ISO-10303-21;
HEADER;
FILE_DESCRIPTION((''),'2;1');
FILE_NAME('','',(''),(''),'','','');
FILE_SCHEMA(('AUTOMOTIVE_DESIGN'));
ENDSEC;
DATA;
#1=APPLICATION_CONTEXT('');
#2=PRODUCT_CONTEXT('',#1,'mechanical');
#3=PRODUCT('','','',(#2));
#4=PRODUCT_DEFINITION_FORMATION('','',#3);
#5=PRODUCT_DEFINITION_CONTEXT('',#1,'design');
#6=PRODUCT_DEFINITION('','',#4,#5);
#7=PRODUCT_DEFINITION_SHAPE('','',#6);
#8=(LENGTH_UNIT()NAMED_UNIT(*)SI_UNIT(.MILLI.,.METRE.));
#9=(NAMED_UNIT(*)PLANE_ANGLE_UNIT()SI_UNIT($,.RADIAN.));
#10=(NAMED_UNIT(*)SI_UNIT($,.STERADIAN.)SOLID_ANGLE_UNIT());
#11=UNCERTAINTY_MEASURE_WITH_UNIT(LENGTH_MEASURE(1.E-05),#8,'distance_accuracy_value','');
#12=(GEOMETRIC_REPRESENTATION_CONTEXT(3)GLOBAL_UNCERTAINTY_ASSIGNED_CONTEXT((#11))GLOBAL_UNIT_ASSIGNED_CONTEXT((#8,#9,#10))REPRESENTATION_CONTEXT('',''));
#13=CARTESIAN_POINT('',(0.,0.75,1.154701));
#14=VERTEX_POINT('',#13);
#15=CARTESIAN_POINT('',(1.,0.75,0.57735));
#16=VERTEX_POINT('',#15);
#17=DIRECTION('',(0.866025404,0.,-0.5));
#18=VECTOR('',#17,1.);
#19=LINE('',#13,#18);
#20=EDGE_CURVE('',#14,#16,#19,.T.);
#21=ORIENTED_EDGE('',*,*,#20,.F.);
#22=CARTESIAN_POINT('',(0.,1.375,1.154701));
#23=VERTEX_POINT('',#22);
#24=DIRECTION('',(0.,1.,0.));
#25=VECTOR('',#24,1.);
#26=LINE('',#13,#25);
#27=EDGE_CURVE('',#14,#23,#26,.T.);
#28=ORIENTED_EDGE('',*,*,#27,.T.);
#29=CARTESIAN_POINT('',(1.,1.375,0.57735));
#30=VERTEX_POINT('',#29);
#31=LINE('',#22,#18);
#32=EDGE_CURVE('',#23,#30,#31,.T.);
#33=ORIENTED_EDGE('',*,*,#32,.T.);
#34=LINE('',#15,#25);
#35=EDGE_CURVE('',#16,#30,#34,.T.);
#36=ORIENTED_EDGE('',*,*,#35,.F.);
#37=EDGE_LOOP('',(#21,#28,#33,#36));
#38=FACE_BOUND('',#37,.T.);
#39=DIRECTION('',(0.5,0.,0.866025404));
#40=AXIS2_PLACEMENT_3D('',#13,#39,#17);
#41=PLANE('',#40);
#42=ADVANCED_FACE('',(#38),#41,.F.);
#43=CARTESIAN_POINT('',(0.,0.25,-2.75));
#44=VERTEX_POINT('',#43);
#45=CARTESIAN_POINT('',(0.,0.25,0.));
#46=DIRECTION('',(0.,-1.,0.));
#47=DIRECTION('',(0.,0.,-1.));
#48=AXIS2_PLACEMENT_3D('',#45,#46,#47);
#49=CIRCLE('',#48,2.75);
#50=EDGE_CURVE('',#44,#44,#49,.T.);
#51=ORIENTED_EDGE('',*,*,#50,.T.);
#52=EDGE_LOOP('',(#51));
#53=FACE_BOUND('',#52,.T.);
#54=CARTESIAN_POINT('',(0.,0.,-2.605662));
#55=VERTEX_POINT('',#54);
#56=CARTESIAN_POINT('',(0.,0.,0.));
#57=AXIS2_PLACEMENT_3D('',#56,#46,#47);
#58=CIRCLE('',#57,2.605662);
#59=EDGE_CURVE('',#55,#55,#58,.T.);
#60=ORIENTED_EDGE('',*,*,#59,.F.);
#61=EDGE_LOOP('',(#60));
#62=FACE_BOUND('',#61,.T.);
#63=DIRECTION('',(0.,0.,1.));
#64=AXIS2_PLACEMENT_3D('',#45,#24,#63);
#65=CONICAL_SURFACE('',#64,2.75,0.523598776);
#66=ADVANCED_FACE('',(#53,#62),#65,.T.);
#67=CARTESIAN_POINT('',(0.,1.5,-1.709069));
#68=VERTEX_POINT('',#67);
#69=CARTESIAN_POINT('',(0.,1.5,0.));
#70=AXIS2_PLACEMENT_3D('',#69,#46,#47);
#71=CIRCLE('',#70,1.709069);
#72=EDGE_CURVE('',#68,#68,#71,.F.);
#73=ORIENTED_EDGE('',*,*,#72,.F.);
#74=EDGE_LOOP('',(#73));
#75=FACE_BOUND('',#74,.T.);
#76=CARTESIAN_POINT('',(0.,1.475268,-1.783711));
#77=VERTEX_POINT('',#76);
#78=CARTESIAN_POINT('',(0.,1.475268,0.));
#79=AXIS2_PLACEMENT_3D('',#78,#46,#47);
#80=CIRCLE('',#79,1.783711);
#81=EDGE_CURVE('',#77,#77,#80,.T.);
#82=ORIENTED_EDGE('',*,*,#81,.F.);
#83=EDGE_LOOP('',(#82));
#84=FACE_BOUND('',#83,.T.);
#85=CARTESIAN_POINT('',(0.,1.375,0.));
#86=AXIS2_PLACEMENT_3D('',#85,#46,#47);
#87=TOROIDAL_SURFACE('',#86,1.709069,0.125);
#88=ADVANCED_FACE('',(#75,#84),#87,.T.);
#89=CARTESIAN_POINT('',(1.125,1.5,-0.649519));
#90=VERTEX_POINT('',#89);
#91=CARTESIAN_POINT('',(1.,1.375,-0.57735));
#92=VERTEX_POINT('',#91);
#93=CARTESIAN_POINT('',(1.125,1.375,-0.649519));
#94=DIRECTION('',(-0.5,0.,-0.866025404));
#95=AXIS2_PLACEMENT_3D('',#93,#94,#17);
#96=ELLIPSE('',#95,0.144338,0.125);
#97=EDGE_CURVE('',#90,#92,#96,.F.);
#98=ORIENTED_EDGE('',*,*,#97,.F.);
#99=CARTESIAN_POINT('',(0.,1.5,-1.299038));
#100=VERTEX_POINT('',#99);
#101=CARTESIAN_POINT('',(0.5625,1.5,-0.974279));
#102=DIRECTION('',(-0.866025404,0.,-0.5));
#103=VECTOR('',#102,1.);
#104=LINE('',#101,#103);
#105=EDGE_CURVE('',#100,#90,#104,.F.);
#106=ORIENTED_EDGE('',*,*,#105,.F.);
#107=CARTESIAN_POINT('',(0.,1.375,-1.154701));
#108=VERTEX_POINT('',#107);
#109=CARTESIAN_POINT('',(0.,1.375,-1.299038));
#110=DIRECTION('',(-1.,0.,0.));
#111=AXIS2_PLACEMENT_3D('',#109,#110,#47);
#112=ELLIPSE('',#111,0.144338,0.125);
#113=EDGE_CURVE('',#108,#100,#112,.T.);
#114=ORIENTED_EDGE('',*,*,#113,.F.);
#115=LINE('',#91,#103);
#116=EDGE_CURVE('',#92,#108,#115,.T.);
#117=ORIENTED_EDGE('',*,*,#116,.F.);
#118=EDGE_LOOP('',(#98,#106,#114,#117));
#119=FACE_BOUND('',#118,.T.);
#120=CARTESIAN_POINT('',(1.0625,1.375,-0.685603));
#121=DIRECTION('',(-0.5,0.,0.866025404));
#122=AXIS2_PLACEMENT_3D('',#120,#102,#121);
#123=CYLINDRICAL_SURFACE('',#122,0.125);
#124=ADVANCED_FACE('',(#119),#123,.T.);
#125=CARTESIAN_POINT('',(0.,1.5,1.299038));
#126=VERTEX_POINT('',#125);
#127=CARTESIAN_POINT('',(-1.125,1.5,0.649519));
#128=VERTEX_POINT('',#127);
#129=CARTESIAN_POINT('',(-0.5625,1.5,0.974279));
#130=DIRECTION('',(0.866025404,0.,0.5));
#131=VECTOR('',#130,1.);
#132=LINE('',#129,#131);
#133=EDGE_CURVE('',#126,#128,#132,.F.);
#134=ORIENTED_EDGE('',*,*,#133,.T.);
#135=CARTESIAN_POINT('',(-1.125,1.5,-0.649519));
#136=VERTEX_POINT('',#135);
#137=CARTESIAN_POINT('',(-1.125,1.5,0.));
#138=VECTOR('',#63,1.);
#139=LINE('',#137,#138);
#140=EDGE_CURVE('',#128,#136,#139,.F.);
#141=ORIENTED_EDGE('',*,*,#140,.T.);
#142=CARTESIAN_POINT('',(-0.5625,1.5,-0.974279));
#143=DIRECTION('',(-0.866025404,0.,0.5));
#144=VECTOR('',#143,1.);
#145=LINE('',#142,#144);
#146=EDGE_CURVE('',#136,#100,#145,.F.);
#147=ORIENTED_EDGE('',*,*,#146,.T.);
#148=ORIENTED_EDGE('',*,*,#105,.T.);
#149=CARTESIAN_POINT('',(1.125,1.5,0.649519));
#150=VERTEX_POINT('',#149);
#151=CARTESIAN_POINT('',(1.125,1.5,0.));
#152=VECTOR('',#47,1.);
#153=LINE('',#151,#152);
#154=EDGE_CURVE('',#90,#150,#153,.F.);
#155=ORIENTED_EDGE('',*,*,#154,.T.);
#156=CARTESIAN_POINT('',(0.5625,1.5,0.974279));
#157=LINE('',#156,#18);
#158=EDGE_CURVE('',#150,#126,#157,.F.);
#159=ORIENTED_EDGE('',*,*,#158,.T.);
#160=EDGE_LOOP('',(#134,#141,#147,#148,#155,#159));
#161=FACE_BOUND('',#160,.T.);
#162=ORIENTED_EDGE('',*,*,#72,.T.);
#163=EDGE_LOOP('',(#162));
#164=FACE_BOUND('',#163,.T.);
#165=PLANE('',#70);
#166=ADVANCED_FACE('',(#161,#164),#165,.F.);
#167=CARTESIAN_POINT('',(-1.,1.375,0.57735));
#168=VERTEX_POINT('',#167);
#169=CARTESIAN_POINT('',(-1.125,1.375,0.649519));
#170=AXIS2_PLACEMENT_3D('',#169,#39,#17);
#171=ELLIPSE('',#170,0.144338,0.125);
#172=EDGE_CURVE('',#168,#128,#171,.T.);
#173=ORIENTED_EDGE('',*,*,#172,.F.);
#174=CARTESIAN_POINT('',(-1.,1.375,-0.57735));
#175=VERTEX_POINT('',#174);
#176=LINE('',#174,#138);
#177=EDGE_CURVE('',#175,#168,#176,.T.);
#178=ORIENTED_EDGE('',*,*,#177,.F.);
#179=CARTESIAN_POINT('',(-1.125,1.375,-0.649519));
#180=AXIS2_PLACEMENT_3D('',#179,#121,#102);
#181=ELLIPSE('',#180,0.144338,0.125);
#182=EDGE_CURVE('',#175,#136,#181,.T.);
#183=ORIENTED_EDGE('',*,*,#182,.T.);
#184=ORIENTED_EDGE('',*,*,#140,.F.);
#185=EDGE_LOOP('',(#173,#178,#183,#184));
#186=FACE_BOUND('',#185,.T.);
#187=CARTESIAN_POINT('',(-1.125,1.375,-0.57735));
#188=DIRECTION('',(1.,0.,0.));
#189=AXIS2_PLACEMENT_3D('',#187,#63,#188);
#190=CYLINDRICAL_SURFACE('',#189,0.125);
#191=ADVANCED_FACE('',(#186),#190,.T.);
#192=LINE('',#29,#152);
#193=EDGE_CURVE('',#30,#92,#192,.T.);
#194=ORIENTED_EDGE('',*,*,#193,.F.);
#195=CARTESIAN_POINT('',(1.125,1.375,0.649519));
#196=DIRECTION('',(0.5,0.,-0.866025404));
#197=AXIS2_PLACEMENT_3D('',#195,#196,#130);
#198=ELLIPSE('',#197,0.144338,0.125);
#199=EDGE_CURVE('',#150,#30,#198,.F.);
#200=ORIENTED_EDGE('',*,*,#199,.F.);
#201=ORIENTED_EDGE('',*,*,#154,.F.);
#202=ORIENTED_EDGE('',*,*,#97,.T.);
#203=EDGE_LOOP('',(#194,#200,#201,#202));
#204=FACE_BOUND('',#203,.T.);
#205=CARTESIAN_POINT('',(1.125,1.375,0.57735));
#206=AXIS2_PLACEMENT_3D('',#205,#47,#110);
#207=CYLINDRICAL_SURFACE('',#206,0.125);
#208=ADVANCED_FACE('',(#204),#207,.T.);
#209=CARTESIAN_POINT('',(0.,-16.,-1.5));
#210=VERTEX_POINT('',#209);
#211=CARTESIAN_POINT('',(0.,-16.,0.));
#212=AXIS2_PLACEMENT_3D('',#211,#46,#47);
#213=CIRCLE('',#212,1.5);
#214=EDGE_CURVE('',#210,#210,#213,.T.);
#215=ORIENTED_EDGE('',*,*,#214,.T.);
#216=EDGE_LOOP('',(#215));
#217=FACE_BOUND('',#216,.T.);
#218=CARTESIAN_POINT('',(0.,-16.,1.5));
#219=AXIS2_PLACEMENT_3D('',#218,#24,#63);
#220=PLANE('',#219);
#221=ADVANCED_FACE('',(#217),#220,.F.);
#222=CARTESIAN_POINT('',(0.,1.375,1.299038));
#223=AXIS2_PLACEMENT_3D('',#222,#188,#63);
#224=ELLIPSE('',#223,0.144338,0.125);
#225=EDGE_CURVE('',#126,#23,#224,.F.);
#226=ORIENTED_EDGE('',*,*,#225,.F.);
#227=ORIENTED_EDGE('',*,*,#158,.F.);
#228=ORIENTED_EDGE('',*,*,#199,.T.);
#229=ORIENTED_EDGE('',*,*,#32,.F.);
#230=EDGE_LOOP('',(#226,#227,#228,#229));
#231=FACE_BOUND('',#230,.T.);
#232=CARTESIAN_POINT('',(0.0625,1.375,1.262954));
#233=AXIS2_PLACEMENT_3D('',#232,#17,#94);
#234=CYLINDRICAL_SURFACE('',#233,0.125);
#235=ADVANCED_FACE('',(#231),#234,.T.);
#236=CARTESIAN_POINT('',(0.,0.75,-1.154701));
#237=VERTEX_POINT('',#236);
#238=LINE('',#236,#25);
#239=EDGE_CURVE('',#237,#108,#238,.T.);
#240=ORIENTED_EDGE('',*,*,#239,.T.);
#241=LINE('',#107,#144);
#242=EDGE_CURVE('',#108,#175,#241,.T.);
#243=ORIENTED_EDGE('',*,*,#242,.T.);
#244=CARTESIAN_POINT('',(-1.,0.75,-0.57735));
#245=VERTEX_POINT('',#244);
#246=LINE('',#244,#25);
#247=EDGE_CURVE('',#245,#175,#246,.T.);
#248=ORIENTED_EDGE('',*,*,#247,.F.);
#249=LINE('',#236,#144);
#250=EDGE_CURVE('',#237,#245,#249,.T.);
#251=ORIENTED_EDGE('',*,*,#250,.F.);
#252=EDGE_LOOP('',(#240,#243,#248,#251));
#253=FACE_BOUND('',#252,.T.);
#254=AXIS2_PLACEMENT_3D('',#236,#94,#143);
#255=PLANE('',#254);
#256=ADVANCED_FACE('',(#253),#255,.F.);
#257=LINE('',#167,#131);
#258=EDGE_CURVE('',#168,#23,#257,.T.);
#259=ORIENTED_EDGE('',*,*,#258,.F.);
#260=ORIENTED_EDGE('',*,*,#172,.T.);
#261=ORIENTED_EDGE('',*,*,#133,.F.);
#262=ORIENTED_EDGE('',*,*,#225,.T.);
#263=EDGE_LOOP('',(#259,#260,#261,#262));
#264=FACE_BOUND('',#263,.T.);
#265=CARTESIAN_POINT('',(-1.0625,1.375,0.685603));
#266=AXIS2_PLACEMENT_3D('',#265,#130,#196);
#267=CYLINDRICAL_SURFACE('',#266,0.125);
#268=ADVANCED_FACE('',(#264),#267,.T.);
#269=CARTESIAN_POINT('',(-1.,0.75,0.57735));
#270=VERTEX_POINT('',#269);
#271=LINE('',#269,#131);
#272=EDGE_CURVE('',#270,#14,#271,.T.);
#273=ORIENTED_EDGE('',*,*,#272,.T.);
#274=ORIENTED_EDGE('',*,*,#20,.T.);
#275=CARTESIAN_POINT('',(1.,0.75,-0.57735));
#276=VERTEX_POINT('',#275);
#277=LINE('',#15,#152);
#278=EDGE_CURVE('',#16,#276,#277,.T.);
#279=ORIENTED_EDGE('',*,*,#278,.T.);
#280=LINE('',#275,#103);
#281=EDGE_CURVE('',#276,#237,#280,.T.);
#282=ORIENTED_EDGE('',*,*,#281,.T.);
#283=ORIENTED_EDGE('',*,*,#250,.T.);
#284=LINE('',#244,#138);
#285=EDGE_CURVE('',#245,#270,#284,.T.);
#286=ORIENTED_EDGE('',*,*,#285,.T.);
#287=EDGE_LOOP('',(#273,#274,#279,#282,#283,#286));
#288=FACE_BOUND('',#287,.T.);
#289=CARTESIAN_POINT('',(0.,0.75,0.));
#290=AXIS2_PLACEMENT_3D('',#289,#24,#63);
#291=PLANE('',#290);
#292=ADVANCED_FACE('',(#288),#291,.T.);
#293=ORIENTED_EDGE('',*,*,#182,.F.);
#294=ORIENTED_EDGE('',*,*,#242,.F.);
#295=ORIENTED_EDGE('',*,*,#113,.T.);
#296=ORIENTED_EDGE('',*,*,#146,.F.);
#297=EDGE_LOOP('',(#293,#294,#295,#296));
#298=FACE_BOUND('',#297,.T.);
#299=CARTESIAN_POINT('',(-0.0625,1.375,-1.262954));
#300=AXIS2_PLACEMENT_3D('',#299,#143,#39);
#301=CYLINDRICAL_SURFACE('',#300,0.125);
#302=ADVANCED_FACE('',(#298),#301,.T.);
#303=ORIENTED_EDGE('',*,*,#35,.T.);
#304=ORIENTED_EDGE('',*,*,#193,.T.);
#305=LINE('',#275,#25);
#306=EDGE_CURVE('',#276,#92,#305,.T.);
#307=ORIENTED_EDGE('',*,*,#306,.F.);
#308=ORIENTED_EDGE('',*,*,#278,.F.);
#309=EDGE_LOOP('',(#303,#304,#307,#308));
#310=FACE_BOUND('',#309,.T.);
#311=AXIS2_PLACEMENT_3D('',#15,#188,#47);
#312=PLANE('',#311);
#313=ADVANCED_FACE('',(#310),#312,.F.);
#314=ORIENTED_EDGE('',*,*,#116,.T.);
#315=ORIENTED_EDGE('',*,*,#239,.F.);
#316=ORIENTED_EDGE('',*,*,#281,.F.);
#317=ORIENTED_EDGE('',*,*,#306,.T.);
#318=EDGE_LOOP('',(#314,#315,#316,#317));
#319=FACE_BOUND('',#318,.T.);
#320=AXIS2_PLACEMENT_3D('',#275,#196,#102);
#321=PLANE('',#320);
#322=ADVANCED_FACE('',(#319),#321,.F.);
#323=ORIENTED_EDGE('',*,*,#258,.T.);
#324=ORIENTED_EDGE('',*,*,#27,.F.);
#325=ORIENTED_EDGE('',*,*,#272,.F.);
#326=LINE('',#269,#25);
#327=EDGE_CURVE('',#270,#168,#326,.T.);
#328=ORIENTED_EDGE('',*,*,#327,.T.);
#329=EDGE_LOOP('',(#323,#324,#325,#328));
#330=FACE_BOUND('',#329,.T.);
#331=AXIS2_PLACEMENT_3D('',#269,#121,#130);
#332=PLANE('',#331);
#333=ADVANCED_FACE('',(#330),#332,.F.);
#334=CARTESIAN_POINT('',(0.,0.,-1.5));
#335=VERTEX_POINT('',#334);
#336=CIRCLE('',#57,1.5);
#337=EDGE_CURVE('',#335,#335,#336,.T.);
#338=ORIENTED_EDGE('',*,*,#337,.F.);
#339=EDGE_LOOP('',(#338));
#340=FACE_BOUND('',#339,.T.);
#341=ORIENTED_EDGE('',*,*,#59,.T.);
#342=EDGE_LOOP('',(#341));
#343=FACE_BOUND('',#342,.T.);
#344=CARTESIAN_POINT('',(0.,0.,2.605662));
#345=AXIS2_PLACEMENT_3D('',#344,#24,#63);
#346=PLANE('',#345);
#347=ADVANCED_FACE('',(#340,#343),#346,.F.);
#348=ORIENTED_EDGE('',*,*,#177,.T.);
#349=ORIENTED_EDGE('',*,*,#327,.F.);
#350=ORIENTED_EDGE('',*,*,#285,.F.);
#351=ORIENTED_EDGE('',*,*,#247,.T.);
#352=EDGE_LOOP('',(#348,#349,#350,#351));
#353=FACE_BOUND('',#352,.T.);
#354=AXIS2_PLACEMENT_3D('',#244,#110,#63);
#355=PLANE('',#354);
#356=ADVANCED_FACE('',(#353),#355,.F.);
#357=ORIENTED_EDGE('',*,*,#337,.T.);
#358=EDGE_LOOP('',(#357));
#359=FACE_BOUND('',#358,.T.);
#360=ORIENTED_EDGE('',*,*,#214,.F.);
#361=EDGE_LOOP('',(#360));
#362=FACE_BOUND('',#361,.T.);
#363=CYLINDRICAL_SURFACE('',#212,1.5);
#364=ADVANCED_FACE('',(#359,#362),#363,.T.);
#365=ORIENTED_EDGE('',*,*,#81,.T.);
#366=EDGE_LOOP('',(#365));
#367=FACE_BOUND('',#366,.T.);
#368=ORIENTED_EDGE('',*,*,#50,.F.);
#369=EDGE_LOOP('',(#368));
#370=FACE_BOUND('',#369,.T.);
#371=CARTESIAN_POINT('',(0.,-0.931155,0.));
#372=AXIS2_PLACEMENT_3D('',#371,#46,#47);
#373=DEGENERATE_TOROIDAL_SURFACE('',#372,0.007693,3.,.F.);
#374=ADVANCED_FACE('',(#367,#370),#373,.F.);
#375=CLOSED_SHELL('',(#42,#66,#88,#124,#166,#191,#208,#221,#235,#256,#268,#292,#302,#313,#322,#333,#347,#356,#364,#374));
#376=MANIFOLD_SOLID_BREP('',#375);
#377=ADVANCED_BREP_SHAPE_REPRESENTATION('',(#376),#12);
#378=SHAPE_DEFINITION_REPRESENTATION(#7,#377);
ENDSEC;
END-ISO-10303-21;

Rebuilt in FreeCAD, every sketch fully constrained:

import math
import FreeCAD as App
import Part
import Sketcher

V = App.Vector
Q = App.Units.Quantity


def edges_at(feature, points):
    """Names of the edges that pass closest to the given points."""
    edges = feature.Shape.Edges
    near = lambda p: min(range(len(edges)), key=lambda i: edges[i].distToShape(Part.Vertex(*p))[0])
    return sorted({f"Edge{near(p) + 1}" for p in points})

doc = App.newDocument("Part")
body = doc.addObject("PartDesign::Body", "Body")

sketch1 = doc.addObject("Sketcher::SketchObject", "Sketch")
body.addObject(sketch1)
sketch1.AttachmentSupport = (doc.YZ_Plane, [""])
sketch1.MapMode = "FlatFace"
sketch1.addGeometry([
    Part.LineSegment(V(1.5, 0, 0), V(1.5, 1.75, 0)),
    Part.ArcOfCircle(Part.Circle(V(-0.93, -0.01, 0), V(0, 0, 1), 3), math.radians(36), math.radians(67)),
    Part.LineSegment(V(0.25, 2.75, 0), V(0, 2.61, 0)),
    Part.LineSegment(V(0, 2.61, 0), V(0, 1.5, 0)),
    Part.LineSegment(V(0, 1.5, 0), V(-16, 1.5, 0)),
    Part.LineSegment(V(-16, 1.5, 0), V(-16, 0, 0)),
    Part.LineSegment(V(-16, 0, 0), V(1.5, 0, 0)),
], False)
sketch1.addConstraint([
    Sketcher.Constraint("Coincident", 0, 2, 1, 1),
    Sketcher.Constraint("Coincident", 1, 2, 2, 1),
    Sketcher.Constraint("Coincident", 2, 2, 3, 1),
    Sketcher.Constraint("Coincident", 3, 2, 4, 1),
    Sketcher.Constraint("Coincident", 4, 2, 5, 1),
    Sketcher.Constraint("Coincident", 5, 2, 6, 1),
    Sketcher.Constraint("Coincident", 6, 2, 0, 1),
    Sketcher.Constraint("Vertical", 0),
    Sketcher.Constraint("Vertical", 3),
    Sketcher.Constraint("Horizontal", 4),
    Sketcher.Constraint("Vertical", 5),
    Sketcher.Constraint("Horizontal", 6),
    Sketcher.Constraint("PointOnObject", 2, 2, -2),
    Sketcher.Constraint("PointOnObject", 5, 2, -1),
    Sketcher.Constraint("Radius", 1, 3.0),
    Sketcher.Constraint("DistanceX", 4, 2, 4, 1, 16.0),
    Sketcher.Constraint("Angle", 2, Q("-150 deg")),
    Sketcher.Constraint("DistanceX", 6, 1, 6, 2, 17.5),
    Sketcher.Constraint("DistanceY", 5, 2, 5, 1, 1.5),
    Sketcher.Constraint("DistanceY", 0, 2, 1, 2, 1.0),
    Sketcher.Constraint("DistanceY", 0, 1, 0, 2, 1.75),
    Sketcher.Constraint("DistanceX", -1, 1, 1, 2, 0.25),
])
revolution = doc.addObject("PartDesign::Revolution", "Revolution")
body.addObject(revolution)
revolution.Profile = sketch1
revolution.ReferenceAxis = (sketch1, ["H_Axis"])
revolution.Angle = 360

sketch2 = doc.addObject("Sketcher::SketchObject", "Sketch001")
body.addObject(sketch2)
sketch2.AttachmentSupport = (doc.XZ_Plane, [""])
sketch2.MapMode = "FlatFace"
sketch2.AttachmentOffset = App.Placement(V(0, 0, -1.5), App.Rotation())
sketch2.addGeometry([
    Part.LineSegment(V(0, -1.2, 0), V(-1, -0.6, 0)),
    Part.LineSegment(V(-1, -0.6, 0), V(-1, 0.6, 0)),
    Part.LineSegment(V(-1, 0.6, 0), V(0, 1.2, 0)),
    Part.LineSegment(V(0, 1.2, 0), V(1, 0.6, 0)),
    Part.LineSegment(V(1, 0.6, 0), V(1, -0.6, 0)),
    Part.LineSegment(V(1, -0.6, 0), V(0, -1.2, 0)),
], False)
sketch2.addConstraint([
    Sketcher.Constraint("Coincident", 0, 2, 1, 1),
    Sketcher.Constraint("Coincident", 1, 2, 2, 1),
    Sketcher.Constraint("Coincident", 2, 2, 3, 1),
    Sketcher.Constraint("Coincident", 3, 2, 4, 1),
    Sketcher.Constraint("Coincident", 4, 2, 5, 1),
    Sketcher.Constraint("Coincident", 5, 2, 0, 1),
    Sketcher.Constraint("Vertical", 1),
    Sketcher.Constraint("Vertical", 4),
    Sketcher.Constraint("Symmetric", 0, 2, 3, 2, -1, 1),
    Sketcher.Constraint("Symmetric", 2, 2, 5, 2, -1, 1),
    Sketcher.Constraint("PointOnObject", 2, 2, -2),
    Sketcher.Constraint("Parallel", 2, 5),
    Sketcher.Constraint("Horizontal", 1, 2, 3, 2),
    Sketcher.Constraint("Angle", 0, Q("150 deg")),
    Sketcher.Constraint("DistanceX", 0, 2, -1, 1, 1.0),
    Sketcher.Constraint("DistanceY", 1, 1, 1, 2, 1.154701),
])
pocket1 = doc.addObject("PartDesign::Pocket", "Pocket")
body.addObject(pocket1)
pocket1.Profile = sketch2
pocket1.Length = 0.75
pocket1.Reversed = True
doc.recompute()

fillet = doc.addObject("PartDesign::Fillet", "Fillet")
body.addObject(fillet)
fillet.Base = (pocket1, edges_at(pocket1, [
    (0.5, 1.5, -0.866),
    (-0.5, 1.5, -0.866),
    (-1, 1.5, 0),
    (-0.5, 1.5, 0.866),
    (0.5, 1.5, 0.866),
    (1, 1.5, 0),
    (0, 1.5, -1.75),
]))
fillet.Radius = 0.125

doc.recompute()
